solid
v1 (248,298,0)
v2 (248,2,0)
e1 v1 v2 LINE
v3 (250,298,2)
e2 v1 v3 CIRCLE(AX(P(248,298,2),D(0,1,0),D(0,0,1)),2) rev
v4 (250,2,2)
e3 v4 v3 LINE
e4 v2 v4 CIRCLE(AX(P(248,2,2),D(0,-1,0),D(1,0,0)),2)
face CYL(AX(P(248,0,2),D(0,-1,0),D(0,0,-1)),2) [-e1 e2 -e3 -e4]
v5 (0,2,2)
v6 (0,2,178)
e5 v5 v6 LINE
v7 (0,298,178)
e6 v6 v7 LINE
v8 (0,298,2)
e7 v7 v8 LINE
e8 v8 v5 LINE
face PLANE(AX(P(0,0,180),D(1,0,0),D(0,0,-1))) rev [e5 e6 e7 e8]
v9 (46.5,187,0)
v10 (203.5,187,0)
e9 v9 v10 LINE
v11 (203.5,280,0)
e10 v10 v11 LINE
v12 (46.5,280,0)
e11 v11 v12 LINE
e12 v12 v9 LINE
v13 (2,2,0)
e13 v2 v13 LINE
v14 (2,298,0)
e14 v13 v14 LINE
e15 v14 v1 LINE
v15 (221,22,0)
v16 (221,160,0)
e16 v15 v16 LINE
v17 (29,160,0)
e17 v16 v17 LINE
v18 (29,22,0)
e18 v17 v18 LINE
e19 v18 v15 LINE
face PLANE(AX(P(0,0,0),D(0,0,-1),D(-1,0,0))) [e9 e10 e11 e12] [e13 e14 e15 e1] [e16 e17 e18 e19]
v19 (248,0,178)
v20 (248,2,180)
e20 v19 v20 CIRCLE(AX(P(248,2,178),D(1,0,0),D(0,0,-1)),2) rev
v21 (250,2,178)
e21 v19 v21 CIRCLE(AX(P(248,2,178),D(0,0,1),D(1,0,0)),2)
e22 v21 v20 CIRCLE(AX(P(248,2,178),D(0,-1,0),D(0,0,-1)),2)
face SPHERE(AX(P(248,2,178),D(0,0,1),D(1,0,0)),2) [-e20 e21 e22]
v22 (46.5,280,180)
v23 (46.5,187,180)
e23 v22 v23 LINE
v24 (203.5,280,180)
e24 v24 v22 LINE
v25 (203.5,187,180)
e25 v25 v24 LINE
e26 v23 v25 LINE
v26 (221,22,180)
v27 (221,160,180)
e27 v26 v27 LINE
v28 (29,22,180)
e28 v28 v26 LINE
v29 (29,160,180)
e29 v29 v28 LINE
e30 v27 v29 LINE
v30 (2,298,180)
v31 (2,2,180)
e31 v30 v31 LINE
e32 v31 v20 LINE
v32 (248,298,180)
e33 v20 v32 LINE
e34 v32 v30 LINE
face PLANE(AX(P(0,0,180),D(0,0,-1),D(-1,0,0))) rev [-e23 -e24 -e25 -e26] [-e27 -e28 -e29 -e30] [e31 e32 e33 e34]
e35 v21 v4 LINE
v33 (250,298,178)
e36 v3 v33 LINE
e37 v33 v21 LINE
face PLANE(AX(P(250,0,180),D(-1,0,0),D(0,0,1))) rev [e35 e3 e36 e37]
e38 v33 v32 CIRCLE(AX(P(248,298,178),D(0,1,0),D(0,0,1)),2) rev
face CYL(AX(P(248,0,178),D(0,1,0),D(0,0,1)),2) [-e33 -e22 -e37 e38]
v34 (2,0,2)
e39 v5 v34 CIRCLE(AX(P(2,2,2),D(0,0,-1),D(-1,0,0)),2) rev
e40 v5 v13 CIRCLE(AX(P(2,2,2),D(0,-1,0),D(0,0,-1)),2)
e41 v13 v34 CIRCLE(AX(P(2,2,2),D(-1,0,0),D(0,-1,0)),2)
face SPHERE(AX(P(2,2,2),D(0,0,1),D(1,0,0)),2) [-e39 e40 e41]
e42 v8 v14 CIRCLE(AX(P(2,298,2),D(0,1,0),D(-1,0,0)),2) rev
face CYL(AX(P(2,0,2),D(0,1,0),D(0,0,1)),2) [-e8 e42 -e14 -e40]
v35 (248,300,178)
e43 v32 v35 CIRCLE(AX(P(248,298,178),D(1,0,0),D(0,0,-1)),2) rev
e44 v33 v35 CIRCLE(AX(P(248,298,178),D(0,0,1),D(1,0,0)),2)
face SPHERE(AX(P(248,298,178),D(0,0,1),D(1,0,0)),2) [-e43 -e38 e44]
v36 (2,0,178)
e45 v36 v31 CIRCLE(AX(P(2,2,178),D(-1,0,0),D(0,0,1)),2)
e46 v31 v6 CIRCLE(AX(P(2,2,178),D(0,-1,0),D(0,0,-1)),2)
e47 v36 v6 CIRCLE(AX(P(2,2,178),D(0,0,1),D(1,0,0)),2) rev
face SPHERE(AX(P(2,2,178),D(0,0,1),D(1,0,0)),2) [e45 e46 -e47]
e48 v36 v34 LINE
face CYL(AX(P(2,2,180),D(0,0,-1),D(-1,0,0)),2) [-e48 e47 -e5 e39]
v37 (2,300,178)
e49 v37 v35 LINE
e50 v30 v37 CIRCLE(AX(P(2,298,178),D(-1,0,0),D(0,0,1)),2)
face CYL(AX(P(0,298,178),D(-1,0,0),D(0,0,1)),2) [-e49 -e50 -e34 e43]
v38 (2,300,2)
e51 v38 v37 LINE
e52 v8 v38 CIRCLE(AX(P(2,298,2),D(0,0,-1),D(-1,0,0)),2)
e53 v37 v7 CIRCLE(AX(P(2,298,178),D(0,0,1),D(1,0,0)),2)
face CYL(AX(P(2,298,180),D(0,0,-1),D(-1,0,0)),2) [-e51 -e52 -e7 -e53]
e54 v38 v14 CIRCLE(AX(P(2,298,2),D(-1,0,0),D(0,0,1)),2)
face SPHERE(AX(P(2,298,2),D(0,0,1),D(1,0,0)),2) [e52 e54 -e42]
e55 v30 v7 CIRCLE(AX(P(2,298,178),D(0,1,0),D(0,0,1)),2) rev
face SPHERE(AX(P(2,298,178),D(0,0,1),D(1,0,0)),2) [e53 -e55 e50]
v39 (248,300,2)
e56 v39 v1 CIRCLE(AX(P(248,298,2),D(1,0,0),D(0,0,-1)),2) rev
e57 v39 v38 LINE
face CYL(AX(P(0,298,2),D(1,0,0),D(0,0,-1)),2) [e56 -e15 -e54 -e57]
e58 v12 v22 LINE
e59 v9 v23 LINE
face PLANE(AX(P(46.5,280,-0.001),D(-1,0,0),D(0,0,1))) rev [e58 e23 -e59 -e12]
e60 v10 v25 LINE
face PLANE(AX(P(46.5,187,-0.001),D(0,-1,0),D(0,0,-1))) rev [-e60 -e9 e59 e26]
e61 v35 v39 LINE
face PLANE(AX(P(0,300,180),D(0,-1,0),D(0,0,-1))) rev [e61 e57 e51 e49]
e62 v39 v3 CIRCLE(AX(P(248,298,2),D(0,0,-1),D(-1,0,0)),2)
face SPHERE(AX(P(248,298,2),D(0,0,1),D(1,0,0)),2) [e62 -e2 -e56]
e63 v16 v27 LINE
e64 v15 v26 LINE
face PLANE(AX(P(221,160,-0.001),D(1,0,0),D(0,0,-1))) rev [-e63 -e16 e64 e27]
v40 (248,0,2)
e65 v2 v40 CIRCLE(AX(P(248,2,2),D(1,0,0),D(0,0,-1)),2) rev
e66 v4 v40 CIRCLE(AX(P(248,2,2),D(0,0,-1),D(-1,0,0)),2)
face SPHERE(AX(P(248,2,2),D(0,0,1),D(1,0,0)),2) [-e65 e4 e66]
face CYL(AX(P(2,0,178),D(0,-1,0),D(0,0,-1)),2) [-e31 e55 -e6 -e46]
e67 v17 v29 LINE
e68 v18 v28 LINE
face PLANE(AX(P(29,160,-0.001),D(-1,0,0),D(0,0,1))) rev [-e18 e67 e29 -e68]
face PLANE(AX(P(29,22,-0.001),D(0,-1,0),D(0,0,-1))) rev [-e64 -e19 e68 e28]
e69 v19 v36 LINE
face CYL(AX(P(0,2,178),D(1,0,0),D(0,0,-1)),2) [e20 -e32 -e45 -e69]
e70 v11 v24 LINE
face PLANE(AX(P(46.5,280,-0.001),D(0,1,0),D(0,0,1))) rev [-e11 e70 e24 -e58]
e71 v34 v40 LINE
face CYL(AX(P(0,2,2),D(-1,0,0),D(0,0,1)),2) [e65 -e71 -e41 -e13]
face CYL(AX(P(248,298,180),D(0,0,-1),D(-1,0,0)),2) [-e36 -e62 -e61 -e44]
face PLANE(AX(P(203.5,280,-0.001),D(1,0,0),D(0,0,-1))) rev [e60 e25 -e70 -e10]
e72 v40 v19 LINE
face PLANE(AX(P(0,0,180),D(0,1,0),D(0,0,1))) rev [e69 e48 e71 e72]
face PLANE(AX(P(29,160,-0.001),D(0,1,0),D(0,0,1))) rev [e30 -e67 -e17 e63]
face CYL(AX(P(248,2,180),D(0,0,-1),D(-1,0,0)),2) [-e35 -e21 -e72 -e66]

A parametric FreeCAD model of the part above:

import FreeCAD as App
import Part
import Sketcher

V = App.Vector

doc = App.newDocument("Part")
params = doc.addObject("Spreadsheet::Sheet", "Params")
for row, (alias, value) in enumerate([
    ("sketch1_width", "250 mm"),
    ("sketch1_height", "300 mm"),
    ("pad1_length", "180 mm"),
    ("fillet_radius", "2 mm"),
    ("sketch2_width", "157 mm"),
    ("sketch2_height", "93 mm"),
    ("sketch3_width", "192 mm"),
    ("sketch3_height", "138 mm"),
], start=1):
    params.set(f"A{row}", alias)
    params.set(f"B{row}", "=" + value)
    params.setAlias(f"B{row}", alias)

body = doc.addObject("PartDesign::Body", "Body")

# Sketch on XY plane
sketch1 = doc.addObject("Sketcher::SketchObject", "Sketch")
body.addObject(sketch1)
sketch1.AttachmentSupport = (doc.XY_Plane, [""])
sketch1.MapMode = "FlatFace"
sketch1.addGeometry(Part.LineSegment(V(0, 300, 0), V(0, 0, 0)), False)
sketch1.addGeometry(Part.LineSegment(V(0, 0, 0), V(250, 0, 0)), False)
sketch1.addGeometry(Part.LineSegment(V(250, 0, 0), V(250, 300, 0)), False)
sketch1.addGeometry(Part.LineSegment(V(250, 300, 0), V(0, 300, 0)), False)
sketch1.addConstraint(Sketcher.Constraint("Coincident", 0, 2, 1, 1))
sketch1.addConstraint(Sketcher.Constraint("Coincident", 1, 2, 2, 1))
sketch1.addConstraint(Sketcher.Constraint("Coincident", 2, 2, 3, 1))
sketch1.addConstraint(Sketcher.Constraint("Coincident", 3, 2, 0, 1))
sketch1.addConstraint(Sketcher.Constraint("Vertical", 0))
sketch1.addConstraint(Sketcher.Constraint("Horizontal", 1))
sketch1.addConstraint(Sketcher.Constraint("Vertical", 2))
sketch1.addConstraint(Sketcher.Constraint("Horizontal", 3))
sketch1.addConstraint(Sketcher.Constraint("Coincident", 0, 2, -1, 1))
sketch1.addConstraint(Sketcher.Constraint("DistanceX", 1, 1, 1, 2, 250.0))
sketch1.addConstraint(Sketcher.Constraint("DistanceY", 0, 2, 0, 1, 300.0))
sketch1.setExpression("Constraints[9]", "Params.sketch1_width")
sketch1.setExpression("Constraints[10]", "Params.sketch1_height")
pad1 = doc.addObject("PartDesign::Pad", "Pad")
body.addObject(pad1)
pad1.Profile = sketch1
pad1.setExpression("Length", "Params.pad1_length")
doc.recompute()

fillet = doc.addObject("PartDesign::Fillet", "Fillet")
body.addObject(fillet)
fillet.Base = (pad1, ["Edge1"])
fillet.UseAllEdges = True
fillet.setExpression("Radius", "Params.fillet_radius")

# Sketch on XY plane
sketch2 = doc.addObject("Sketcher::SketchObject", "Sketch001")
body.addObject(sketch2)
sketch2.AttachmentSupport = (doc.XY_Plane, [""])
sketch2.MapMode = "FlatFace"
sketch2.AttachmentOffset = App.Placement(V(0, 0, 180), App.Rotation())
sketch2.addGeometry(Part.LineSegment(V(46, 280, 0), V(46, 187, 0)), False)
sketch2.addGeometry(Part.LineSegment(V(46, 187, 0), V(204, 187, 0)), False)
sketch2.addGeometry(Part.LineSegment(V(204, 187, 0), V(204, 280, 0)), False)
sketch2.addGeometry(Part.LineSegment(V(204, 280, 0), V(46, 280, 0)), False)
sketch2.addConstraint(Sketcher.Constraint("Coincident", 0, 2, 1, 1))
sketch2.addConstraint(Sketcher.Constraint("Coincident", 1, 2, 2, 1))
sketch2.addConstraint(Sketcher.Constraint("Coincident", 2, 2, 3, 1))
sketch2.addConstraint(Sketcher.Constraint("Coincident", 3, 2, 0, 1))
sketch2.addConstraint(Sketcher.Constraint("Vertical", 0))
sketch2.addConstraint(Sketcher.Constraint("Horizontal", 1))
sketch2.addConstraint(Sketcher.Constraint("Vertical", 2))
sketch2.addConstraint(Sketcher.Constraint("Horizontal", 3))
sketch2.addConstraint(Sketcher.Constraint("DistanceX", 1, 1, 1, 2, 157.0))
sketch2.addConstraint(Sketcher.Constraint("DistanceY", 0, 2, 0, 1, 93.0))
sketch2.addConstraint(Sketcher.Constraint("DistanceY", -1, 1, 0, 2, 187.0))
sketch2.addConstraint(Sketcher.Constraint("DistanceX", -1, 1, 0, 2, 46.5))
sketch2.setExpression("Constraints[8]", "Params.sketch2_width")
sketch2.setExpression("Constraints[9]", "Params.sketch2_height")
pocket1 = doc.addObject("PartDesign::Pocket", "Pocket")
body.addObject(pocket1)
pocket1.Profile = sketch2
pocket1.Type = "UpToFirst"

# Sketch on XY plane
sketch3 = doc.addObject("Sketcher::SketchObject", "Sketch002")
body.addObject(sketch3)
sketch3.AttachmentSupport = (doc.XY_Plane, [""])
sketch3.MapMode = "FlatFace"
sketch3.AttachmentOffset = App.Placement(V(0, 0, 180), App.Rotation())
sketch3.addGeometry(Part.LineSegment(V(29, 160, 0), V(29, 22, 0)), False)
sketch3.addGeometry(Part.LineSegment(V(29, 22, 0), V(221, 22, 0)), False)
sketch3.addGeometry(Part.LineSegment(V(221, 22, 0), V(221, 160, 0)), False)
sketch3.addGeometry(Part.LineSegment(V(221, 160, 0), V(29, 160, 0)), False)
sketch3.addConstraint(Sketcher.Constraint("Coincident", 0, 2, 1, 1))
sketch3.addConstraint(Sketcher.Constraint("Coincident", 1, 2, 2, 1))
sketch3.addConstraint(Sketcher.Constraint("Coincident", 2, 2, 3, 1))
sketch3.addConstraint(Sketcher.Constraint("Coincident", 3, 2, 0, 1))
sketch3.addConstraint(Sketcher.Constraint("Vertical", 0))
sketch3.addConstraint(Sketcher.Constraint("Horizontal", 1))
sketch3.addConstraint(Sketcher.Constraint("Vertical", 2))
sketch3.addConstraint(Sketcher.Constraint("Horizontal", 3))
sketch3.addConstraint(Sketcher.Constraint("DistanceX", 1, 1, 1, 2, 192.0))
sketch3.addConstraint(Sketcher.Constraint("DistanceY", 0, 2, 0, 1, 138.0))
sketch3.addConstraint(Sketcher.Constraint("DistanceX", -1, 1, 0, 2, 29.0))
sketch3.addConstraint(Sketcher.Constraint("DistanceY", -1, 1, 0, 2, 22.0))
sketch3.setExpression("Constraints[8]", "Params.sketch3_width")
sketch3.setExpression("Constraints[9]", "Params.sketch3_height")
pocket2 = doc.addObject("PartDesign::Pocket", "Pocket001")
body.addObject(pocket2)
pocket2.Profile = sketch3
pocket2.Type = "UpToFirst"

doc.recompute()
